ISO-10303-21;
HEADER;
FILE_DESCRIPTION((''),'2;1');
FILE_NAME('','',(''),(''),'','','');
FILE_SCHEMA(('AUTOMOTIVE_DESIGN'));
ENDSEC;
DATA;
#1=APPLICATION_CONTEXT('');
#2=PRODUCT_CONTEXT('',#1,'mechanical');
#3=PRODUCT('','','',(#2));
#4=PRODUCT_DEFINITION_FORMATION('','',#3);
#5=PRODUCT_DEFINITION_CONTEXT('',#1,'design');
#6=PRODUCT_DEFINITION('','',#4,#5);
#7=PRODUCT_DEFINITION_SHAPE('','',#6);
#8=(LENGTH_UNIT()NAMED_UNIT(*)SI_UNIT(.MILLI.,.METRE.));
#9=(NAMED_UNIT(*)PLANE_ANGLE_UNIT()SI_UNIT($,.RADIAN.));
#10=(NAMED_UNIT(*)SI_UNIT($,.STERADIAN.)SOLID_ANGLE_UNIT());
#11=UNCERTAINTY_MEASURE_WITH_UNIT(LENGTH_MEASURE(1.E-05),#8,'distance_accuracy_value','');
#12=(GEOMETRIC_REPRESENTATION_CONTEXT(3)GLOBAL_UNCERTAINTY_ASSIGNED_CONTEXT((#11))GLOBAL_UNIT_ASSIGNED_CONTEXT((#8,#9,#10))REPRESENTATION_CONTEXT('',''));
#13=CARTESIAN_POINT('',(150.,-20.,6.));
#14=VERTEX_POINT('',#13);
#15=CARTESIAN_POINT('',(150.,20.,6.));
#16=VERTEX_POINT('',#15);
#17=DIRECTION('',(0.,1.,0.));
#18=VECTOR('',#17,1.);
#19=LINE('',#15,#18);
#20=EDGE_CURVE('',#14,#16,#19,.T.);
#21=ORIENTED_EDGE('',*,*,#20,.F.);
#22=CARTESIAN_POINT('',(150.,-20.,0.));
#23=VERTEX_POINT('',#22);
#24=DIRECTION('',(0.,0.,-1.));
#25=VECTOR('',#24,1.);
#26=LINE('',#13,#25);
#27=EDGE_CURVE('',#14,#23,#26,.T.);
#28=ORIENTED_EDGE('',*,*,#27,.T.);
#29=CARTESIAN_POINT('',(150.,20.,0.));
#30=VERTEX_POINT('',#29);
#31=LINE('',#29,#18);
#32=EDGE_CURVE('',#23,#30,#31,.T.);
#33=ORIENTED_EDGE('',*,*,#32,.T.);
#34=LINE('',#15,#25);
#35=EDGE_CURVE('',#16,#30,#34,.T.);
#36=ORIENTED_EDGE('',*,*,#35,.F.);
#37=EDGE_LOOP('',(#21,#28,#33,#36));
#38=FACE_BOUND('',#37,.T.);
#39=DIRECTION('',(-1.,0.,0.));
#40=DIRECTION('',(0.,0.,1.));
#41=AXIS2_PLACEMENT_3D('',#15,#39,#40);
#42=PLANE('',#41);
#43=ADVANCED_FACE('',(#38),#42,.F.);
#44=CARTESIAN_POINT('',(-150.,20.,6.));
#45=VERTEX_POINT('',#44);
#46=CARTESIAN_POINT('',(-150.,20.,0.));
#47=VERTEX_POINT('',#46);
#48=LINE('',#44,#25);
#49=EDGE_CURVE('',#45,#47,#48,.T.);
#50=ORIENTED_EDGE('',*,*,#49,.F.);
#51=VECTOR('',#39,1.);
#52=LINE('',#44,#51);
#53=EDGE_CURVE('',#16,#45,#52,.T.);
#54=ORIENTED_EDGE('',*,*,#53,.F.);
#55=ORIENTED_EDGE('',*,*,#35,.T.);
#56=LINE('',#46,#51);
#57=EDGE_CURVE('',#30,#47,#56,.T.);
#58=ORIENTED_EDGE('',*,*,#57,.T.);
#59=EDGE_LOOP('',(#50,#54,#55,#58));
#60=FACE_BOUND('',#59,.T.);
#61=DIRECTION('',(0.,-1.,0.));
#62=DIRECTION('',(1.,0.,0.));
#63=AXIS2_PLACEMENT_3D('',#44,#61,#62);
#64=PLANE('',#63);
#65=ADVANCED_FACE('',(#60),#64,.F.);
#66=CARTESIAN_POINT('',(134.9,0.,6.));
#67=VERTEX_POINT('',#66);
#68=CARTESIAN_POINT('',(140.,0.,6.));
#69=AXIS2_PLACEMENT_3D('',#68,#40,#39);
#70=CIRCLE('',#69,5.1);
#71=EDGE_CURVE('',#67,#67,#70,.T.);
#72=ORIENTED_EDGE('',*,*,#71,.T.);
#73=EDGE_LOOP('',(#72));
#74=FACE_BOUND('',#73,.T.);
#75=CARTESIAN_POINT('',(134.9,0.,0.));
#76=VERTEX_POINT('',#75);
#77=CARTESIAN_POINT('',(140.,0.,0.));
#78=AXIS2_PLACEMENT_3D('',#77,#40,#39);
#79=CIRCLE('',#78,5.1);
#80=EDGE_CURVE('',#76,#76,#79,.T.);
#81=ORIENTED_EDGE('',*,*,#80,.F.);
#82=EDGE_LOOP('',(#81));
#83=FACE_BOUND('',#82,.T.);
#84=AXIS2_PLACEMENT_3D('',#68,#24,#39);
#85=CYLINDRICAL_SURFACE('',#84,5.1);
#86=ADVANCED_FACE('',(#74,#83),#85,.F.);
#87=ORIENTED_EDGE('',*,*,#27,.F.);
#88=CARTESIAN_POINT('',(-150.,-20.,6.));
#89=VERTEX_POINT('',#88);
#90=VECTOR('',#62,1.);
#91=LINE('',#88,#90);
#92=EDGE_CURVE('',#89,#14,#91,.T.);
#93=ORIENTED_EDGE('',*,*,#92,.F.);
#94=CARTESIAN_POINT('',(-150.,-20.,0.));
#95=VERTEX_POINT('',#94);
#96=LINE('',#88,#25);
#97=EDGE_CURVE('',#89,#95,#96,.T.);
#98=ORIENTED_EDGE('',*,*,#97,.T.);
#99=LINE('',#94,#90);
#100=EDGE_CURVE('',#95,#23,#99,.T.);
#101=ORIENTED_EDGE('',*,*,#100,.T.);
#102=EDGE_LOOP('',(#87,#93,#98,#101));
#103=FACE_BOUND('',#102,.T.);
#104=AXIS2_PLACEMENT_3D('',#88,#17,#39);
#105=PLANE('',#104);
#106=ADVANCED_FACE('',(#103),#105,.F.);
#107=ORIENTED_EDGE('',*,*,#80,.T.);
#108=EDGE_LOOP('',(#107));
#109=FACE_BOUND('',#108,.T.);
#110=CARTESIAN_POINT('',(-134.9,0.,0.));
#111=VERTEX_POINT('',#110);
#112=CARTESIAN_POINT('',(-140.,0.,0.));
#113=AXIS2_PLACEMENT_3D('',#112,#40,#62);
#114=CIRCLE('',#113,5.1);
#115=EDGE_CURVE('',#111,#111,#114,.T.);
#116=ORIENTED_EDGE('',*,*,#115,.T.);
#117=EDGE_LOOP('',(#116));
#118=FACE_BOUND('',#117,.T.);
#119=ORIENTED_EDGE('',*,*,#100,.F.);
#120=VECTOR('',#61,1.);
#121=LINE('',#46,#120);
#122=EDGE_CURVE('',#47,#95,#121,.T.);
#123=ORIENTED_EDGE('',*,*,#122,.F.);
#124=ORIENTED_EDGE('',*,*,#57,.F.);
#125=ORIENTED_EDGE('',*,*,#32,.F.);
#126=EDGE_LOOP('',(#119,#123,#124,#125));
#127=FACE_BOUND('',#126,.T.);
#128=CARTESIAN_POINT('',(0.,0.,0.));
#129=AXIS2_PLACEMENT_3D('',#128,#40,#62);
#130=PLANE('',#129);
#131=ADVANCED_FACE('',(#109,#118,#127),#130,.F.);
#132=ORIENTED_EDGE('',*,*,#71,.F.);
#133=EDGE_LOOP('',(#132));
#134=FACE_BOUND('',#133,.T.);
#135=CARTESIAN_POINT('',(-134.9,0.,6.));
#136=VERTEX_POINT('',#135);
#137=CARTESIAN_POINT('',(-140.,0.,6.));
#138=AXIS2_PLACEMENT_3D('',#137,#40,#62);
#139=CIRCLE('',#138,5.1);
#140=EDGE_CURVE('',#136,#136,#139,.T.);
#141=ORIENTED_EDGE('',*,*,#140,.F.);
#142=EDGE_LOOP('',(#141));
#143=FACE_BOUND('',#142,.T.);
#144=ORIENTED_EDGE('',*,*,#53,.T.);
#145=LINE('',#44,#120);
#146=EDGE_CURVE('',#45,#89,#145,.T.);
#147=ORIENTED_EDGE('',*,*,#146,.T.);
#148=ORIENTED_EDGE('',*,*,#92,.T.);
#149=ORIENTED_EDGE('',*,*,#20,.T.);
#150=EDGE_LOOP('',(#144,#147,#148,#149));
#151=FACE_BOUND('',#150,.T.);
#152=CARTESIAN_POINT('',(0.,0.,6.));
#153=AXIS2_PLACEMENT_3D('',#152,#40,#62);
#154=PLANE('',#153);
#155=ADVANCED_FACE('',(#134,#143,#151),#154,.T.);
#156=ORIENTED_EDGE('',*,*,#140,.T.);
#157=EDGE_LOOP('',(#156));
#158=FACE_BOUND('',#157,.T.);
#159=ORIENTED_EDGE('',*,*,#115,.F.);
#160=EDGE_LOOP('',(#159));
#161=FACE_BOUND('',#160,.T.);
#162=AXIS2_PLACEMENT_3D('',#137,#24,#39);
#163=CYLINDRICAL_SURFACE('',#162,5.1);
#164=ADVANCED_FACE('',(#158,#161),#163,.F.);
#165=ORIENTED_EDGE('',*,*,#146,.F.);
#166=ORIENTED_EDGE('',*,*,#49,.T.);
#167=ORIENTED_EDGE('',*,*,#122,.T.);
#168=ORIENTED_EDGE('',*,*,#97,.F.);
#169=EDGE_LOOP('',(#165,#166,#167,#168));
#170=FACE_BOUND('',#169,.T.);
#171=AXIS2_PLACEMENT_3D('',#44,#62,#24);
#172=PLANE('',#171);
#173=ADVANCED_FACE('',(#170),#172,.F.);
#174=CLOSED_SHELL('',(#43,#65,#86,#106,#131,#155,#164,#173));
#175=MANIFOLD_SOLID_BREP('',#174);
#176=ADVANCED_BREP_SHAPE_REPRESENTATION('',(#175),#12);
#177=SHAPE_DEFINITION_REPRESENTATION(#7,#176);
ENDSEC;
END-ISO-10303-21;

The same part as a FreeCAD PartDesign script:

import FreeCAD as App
import Part
import Sketcher


def add_polygon(sketch, points):
    """Adds a closed chain of lines whose ends are joined by coincident constraints."""
    first, n = sketch.GeometryCount, len(points)
    for a, b in zip(points, points[1:] + points[:1]):
        sketch.addGeometry(Part.LineSegment(App.Vector(*a, 0), App.Vector(*b, 0)), False)
    for i in range(n):
        sketch.addConstraint(Sketcher.Constraint("Coincident", first + i, 2, first + (i + 1) % n, 1))

doc = App.newDocument("Part")
params = doc.addObject("Spreadsheet::Sheet", "Params")
for row, (alias, value) in enumerate([
    ("sketch1_diameter", "10.2 mm"),
    ("sketch1_width", "300 mm"),
    ("sketch1_height", "40 mm"),
    ("pad1_length", "6 mm"),
], start=1):
    params.set(f"A{row}", alias)
    params.set(f"B{row}", "=" + value)
    params.setAlias(f"B{row}", alias)

body = doc.addObject("PartDesign::Body", "Body")

sketch1 = body.newObject("Sketcher::SketchObject", "Sketch")
sketch1.AttachmentSupport = (doc.getObject("XY_Plane"), [""])
sketch1.MapMode = "FlatFace"
add_polygon(sketch1, [(-150, 20), (-150, -20), (150, -20), (150, 20)])
sketch1.addGeometry(Part.Circle(App.Vector(-140, 0, 0), App.Vector(0, 0, 1), 5), False)
sketch1.addGeometry(Part.Circle(App.Vector(140, 0, 0), App.Vector(0, 0, 1), 5), False)
sketch1.addConstraint([
    Sketcher.Constraint("Vertical", 0),
    Sketcher.Constraint("Horizontal", 1),
    Sketcher.Constraint("Vertical", 2),
    Sketcher.Constraint("Horizontal", 3),
    Sketcher.Constraint("Equal", 4, 5),
    Sketcher.Constraint("Symmetric", 4, 3, 5, 3, -1, 1),
    Sketcher.Constraint("Symmetric", 0, 2, 2, 2, -1, 1),
    Sketcher.Constraint("PointOnObject", 4, 3, -1),
    Sketcher.Constraint("Diameter", 4, 10.2),
    Sketcher.Constraint("DistanceX", 1, 1, 1, 2, 300.0),
    Sketcher.Constraint("DistanceY", 0, 2, 0, 1, 40.0),
    Sketcher.Constraint("DistanceX", 4, 3, -1, 1, 140.0),
])
sketch1.setExpression("Constraints[12]", "Params.sketch1_diameter")
sketch1.setExpression("Constraints[13]", "Params.sketch1_width")
sketch1.setExpression("Constraints[14]", "Params.sketch1_height")
pad1 = body.newObject("PartDesign::Pad", "Pad")
pad1.Profile = sketch1
pad1.setExpression("Length", "Params.pad1_length")

doc.recompute()
